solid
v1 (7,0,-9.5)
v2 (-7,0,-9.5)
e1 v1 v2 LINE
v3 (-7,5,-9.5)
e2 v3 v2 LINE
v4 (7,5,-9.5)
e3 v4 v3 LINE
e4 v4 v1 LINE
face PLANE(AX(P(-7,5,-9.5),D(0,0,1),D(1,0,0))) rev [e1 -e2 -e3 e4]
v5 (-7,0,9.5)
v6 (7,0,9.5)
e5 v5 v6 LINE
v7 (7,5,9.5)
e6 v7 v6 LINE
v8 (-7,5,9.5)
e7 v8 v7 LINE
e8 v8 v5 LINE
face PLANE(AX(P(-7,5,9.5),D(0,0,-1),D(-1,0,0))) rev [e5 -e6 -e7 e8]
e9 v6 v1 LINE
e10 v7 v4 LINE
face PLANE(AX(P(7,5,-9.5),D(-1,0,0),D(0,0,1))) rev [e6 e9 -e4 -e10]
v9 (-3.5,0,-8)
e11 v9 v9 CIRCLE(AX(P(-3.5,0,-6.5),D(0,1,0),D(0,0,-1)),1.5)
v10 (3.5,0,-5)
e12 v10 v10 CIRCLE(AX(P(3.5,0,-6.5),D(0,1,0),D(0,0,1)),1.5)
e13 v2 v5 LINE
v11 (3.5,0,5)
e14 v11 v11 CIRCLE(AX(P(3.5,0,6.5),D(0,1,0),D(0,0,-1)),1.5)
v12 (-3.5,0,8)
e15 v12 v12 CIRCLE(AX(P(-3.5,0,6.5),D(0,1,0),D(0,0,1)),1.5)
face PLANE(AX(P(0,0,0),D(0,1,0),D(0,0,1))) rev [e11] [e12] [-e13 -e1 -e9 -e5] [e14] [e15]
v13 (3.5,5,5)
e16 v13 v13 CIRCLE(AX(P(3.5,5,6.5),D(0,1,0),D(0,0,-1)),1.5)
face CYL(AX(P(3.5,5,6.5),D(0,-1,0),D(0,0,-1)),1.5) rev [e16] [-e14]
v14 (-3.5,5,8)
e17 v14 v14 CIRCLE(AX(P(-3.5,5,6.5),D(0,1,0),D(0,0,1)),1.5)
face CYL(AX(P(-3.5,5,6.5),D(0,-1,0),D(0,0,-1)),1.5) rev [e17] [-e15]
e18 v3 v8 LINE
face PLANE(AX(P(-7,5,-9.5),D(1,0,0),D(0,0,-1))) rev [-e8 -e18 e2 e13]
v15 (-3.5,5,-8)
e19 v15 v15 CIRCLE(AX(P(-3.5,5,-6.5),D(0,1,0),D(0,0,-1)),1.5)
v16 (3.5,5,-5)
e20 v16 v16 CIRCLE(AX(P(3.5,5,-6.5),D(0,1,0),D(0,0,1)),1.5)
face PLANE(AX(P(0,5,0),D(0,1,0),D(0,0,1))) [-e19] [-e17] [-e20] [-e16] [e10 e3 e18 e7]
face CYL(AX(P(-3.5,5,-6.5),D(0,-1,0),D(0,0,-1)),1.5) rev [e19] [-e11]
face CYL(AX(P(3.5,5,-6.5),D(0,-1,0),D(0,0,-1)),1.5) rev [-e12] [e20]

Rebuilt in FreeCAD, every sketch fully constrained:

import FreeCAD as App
import Part
import Sketcher
from FreeCAD import Vector
Q = App.Units.Quantity


def add_polygon(sketch, points):
    """Adds a closed chain of lines whose ends are joined by coincident constraints."""
    first, n = sketch.GeometryCount, len(points)
    for a, b in zip(points, points[1:] + points[:1]):
        sketch.addGeometry(Part.LineSegment(App.Vector(*a, 0), App.Vector(*b, 0)), False)
    for i in range(n):
        sketch.addConstraint(Sketcher.Constraint("Coincident", first + i, 2, first + (i + 1) % n, 1))

doc = App.newDocument("Part")
body = doc.addObject("PartDesign::Body", "Body")

sketch1 = doc.addObject("Sketcher::SketchObject", "Sketch")
body.addObject(sketch1)
sketch1.AttachmentSupport = (doc.XZ_Plane, [""])
sketch1.MapMode = "FlatFace"
add_polygon(sketch1, [(-7, -9.5), (-7, 9.5), (7, 9.5), (7, -9.5)])
sketch1.addGeometry(Part.Circle(Vector(-3.5, 6.5, 0), Vector(0, 0, 1), 1.5), False)
sketch1.addGeometry(Part.Circle(Vector(3.5, 6.5, 0), Vector(0, 0, 1), 1.5), False)
sketch1.addGeometry(Part.Circle(Vector(-3.5, -6.5, 0), Vector(0, 0, 1), 1.5), False)
sketch1.addGeometry(Part.Circle(Vector(3.5, -6.5, 0), Vector(0, 0, 1), 1.5), False)
sketch1.addConstraint([
    Sketcher.Constraint("Vertical", 0),
    Sketcher.Constraint("Horizontal", 1),
    Sketcher.Constraint("Vertical", 2),
    Sketcher.Constraint("Horizontal", 3),
    Sketcher.Constraint("Equal", 4, 5),
    Sketcher.Constraint("Equal", 5, 6),
    Sketcher.Constraint("Equal", 6, 7),
    Sketcher.Constraint("Symmetric", 5, 3, 6, 3, -1, 1),
    Sketcher.Constraint("Symmetric", 4, 3, 7, 3, -1, 1),
    Sketcher.Constraint("Symmetric", 0, 2, 2, 2, -1, 1),
    Sketcher.Constraint("Symmetric", 4, 3, 5, 3, -2),
    Sketcher.Constraint("Diameter", 4, Q("3 mm")),
    Sketcher.Constraint("DistanceX", 1, 1, 1, 2, Q("14 mm")),
    Sketcher.Constraint("DistanceY", 0, 1, 0, 2, Q("19 mm")),
    Sketcher.Constraint("DistanceX", 4, 3, 5, 3, Q("7 mm")),
    Sketcher.Constraint("DistanceY", 6, 3, 4, 3, Q("13 mm")),
])
pad1 = doc.addObject("PartDesign::Pad", "Pad")
body.addObject(pad1)
pad1.Profile = sketch1
pad1.Length = 5
pad1.Reversed = True

doc.recompute()
